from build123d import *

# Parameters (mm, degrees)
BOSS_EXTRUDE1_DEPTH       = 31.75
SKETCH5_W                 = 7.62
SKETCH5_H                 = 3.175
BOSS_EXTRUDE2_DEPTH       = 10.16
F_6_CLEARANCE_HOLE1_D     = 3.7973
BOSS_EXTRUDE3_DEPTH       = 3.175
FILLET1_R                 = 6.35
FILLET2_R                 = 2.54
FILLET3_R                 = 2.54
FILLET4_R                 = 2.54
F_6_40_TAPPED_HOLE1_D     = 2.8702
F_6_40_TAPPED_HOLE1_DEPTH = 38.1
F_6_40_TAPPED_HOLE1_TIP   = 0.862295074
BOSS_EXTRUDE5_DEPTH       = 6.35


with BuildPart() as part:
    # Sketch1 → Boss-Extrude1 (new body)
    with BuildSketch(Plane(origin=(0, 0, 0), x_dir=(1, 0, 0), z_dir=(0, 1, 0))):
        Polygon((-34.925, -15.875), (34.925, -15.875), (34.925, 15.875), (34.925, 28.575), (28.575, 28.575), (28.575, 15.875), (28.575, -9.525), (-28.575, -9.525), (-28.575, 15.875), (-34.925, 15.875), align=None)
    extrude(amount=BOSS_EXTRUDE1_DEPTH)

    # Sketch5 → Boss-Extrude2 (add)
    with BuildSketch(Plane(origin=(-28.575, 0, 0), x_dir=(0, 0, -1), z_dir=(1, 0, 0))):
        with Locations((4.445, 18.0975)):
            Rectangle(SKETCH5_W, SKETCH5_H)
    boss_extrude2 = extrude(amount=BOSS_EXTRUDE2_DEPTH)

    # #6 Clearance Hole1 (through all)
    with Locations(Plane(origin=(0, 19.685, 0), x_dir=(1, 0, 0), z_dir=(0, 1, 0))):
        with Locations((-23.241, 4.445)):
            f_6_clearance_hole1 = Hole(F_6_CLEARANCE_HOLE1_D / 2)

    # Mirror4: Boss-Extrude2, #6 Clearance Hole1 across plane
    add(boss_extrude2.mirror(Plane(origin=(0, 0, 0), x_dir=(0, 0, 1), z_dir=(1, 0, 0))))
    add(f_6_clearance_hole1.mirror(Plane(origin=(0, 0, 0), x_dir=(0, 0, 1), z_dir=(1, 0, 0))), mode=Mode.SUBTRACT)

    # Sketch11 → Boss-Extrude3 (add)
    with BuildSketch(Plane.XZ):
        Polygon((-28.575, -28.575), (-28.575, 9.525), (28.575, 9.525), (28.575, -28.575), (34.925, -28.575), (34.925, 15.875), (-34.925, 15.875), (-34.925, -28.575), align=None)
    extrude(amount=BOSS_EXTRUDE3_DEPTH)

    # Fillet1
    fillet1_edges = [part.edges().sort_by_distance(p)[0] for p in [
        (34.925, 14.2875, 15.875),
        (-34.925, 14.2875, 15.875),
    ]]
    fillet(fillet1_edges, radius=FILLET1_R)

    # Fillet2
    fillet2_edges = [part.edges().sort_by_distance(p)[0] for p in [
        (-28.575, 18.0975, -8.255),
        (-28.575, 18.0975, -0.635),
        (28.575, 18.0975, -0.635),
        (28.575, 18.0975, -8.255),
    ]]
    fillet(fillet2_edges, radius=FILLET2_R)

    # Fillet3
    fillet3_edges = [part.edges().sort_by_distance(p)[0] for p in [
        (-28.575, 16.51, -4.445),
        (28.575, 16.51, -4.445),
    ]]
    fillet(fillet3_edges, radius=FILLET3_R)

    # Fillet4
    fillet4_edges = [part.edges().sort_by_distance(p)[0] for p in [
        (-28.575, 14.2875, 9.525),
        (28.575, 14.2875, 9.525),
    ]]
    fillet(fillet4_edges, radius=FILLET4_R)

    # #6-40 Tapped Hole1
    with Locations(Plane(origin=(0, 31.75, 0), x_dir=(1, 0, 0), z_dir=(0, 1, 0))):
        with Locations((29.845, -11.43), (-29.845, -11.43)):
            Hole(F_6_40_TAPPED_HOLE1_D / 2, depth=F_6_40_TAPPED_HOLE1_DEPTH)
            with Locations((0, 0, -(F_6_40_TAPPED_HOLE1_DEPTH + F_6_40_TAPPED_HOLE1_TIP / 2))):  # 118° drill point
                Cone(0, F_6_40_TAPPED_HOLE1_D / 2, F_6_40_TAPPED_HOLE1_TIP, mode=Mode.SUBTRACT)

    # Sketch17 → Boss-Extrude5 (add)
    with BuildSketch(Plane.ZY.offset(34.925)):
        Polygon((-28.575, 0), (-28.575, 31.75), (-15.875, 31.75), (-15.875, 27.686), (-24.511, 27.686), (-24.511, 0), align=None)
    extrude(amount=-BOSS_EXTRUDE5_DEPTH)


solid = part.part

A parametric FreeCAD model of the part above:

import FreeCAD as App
import Part
import Sketcher
Q = App.Units.Quantity


def edges_at(feature, points):
    """Names of the edges that pass closest to the given points."""
    edges = feature.Shape.Edges
    near = lambda p: min(range(len(edges)), key=lambda i: edges[i].distToShape(Part.Vertex(*p))[0])
    return sorted({f"Edge{near(p) + 1}" for p in points})


def add_polygon(sketch, points):
    """Adds a closed chain of lines whose ends are joined by coincident constraints."""
    first, n = sketch.GeometryCount, len(points)
    for a, b in zip(points, points[1:] + points[:1]):
        sketch.addGeometry(Part.LineSegment(App.Vector(*a, 0), App.Vector(*b, 0)), False)
    for i in range(n):
        sketch.addConstraint(Sketcher.Constraint("Coincident", first + i, 2, first + (i + 1) % n, 1))

doc = App.newDocument("Part")
body = doc.addObject("PartDesign::Body", "Body")

sketch1 = doc.addObject("Sketcher::SketchObject", "Sketch")
body.addObject(sketch1)
sketch1.AttachmentSupport = (doc.XZ_Plane, [""])
sketch1.MapMode = "FlatFace"
add_polygon(sketch1, [(-34.925, 15.875), (34.925, 15.875), (34.925, -28.575), (28.575, -28.575), (28.575, 9.525), (-28.575, 9.525), (-28.575, -15.875), (-34.925, -15.875)])
sketch1.addConstraint(Sketcher.Constraint("Horizontal", 0))
sketch1.addConstraint(Sketcher.Constraint("Vertical", 1))
sketch1.addConstraint(Sketcher.Constraint("Horizontal", 2))
sketch1.addConstraint(Sketcher.Constraint("Vertical", 3))
sketch1.addConstraint(Sketcher.Constraint("Horizontal", 4))
sketch1.addConstraint(Sketcher.Constraint("Vertical", 5))
sketch1.addConstraint(Sketcher.Constraint("Horizontal", 6))
sketch1.addConstraint(Sketcher.Constraint("Vertical", 7))
sketch1.addConstraint(Sketcher.Constraint("Symmetric", 0, 2, 6, 2, -1, 1))
sketch1.addConstraint(Sketcher.Constraint("Equal", 2, 6))
sketch1.addConstraint(Sketcher.Constraint("DistanceY", 5, 2, 5, 1, Q("1 in")))
sketch1.addConstraint(Sketcher.Constraint("DistanceY", 3, 1, 3, 2, Q("1.5 in")))
sketch1.addConstraint(Sketcher.Constraint("DistanceX", 0, 1, 0, 2, Q("2.75 in")))
sketch1.addConstraint(Sketcher.Constraint("DistanceX", 2, 2, 2, 1, Q("0.25 in")))
sketch1.addConstraint(Sketcher.Constraint("DistanceY", 1, 2, 1, 1, Q("1.75 in")))
pad1 = doc.addObject("PartDesign::Pad", "Pad")
body.addObject(pad1)
pad1.Profile = sketch1
pad1.Length = Q("1.25 in")
pad1.Reversed = True

sketch2 = doc.addObject("Sketcher::SketchObject", "Sketch001")
body.addObject(sketch2)
sketch2.AttachmentSupport = (doc.YZ_Plane, [""])
sketch2.MapMode = "FlatFace"
sketch2.AttachmentOffset = App.Placement(App.Vector(0, 0, -1.125 * 25.4), App.Rotation())
add_polygon(sketch2, [(19.685, -0.635), (16.51, -0.635), (16.51, -8.255), (19.685, -8.255)])
sketch2.addConstraint(Sketcher.Constraint("Horizontal", 0))
sketch2.addConstraint(Sketcher.Constraint("Vertical", 1))
sketch2.addConstraint(Sketcher.Constraint("Horizontal", 2))
sketch2.addConstraint(Sketcher.Constraint("Vertical", 3))
sketch2.addConstraint(Sketcher.Constraint("DistanceY", 1, 2, 1, 1, Q("0.3 in")))
sketch2.addConstraint(Sketcher.Constraint("DistanceX", 0, 2, 0, 1, Q("0.125 in")))
sketch2.addConstraint(Sketcher.Constraint("DistanceX", -1, 1, 0, 2, Q("0.65 in")))
sketch2.addConstraint(Sketcher.Constraint("DistanceY", 0, 2, -1, 1, Q("0.025 in")))
pad2 = doc.addObject("PartDesign::Pad", "Pad001")
body.addObject(pad2)
pad2.Profile = sketch2
pad2.Length = Q("0.4 in")

sketch3 = doc.addObject("Sketcher::SketchObject", "Sketch002")
body.addObject(sketch3)
sketch3.AttachmentSupport = (doc.XZ_Plane, [""])
sketch3.MapMode = "FlatFace"
sketch3.AttachmentOffset = App.Placement(App.Vector(0, 0, -0.775 * 25.4), App.Rotation())
sketch3.addGeometry(Part.Circle(App.Vector(-23.241, -4.445, 0), App.Vector(0, 0, 1), 1.89865), False)
sketch3.addConstraint(Sketcher.Constraint("Diameter", 0, Q("0.1495 in")))
sketch3.addConstraint(Sketcher.Constraint("DistanceX", 0, 3, -1, 1, Q("0.915 in")))
sketch3.addConstraint(Sketcher.Constraint("DistanceY", 0, 3, -1, 1, Q("0.175 in")))
doc.recompute()
hole = doc.addObject("PartDesign::Hole", "Hole")
body.addObject(hole)
hole.Profile = sketch3
hole.ThreadType = "None"
hole.Diameter = Q("0.1495 in")
hole.DepthType = "ThroughAll"
hole.Reversed = True
doc.recompute()

mirrored = doc.addObject("PartDesign::Mirrored", "Mirrored")
body.addObject(mirrored)
mirrored.Originals = [pad2, hole]
mirrored.MirrorPlane = (doc.YZ_Plane, [""])
body.Tip = mirrored

sketch4 = doc.addObject("Sketcher::SketchObject", "Sketch003")
body.addObject(sketch4)
sketch4.AttachmentSupport = (doc.XZ_Plane, [""])
sketch4.MapMode = "FlatFace"
add_polygon(sketch4, [(-28.575, -28.575), (-28.575, 9.525), (28.575, 9.525), (28.575, -28.575), (34.925, -28.575), (34.925, 15.875), (-34.925, 15.875), (-34.925, -28.575)])
sketch4.addConstraint(Sketcher.Constraint("Vertical", 0))
sketch4.addConstraint(Sketcher.Constraint("Horizontal", 1))
sketch4.addConstraint(Sketcher.Constraint("Vertical", 2))
sketch4.addConstraint(Sketcher.Constraint("Horizontal", 3))
sketch4.addConstraint(Sketcher.Constraint("Vertical", 4))
sketch4.addConstraint(Sketcher.Constraint("Horizontal", 5))
sketch4.addConstraint(Sketcher.Constraint("Vertical", 6))
sketch4.addConstraint(Sketcher.Constraint("Horizontal", 7))
sketch4.addConstraint(Sketcher.Constraint("Symmetric", 3, 2, 6, 2, -2))
sketch4.addConstraint(Sketcher.Constraint("Equal", 3, 7))
sketch4.addConstraint(Sketcher.Constraint("DistanceY", 0, 1, 0, 2, Q("1.5 in")))
sketch4.addConstraint(Sketcher.Constraint("DistanceX", 1, 1, 1, 2, Q("2.25 in")))
sketch4.addConstraint(Sketcher.Constraint("DistanceX", 3, 1, 3, 2, Q("0.25 in")))
sketch4.addConstraint(Sketcher.Constraint("DistanceY", 4, 1, 4, 2, Q("1.75 in")))
sketch4.addConstraint(Sketcher.Constraint("DistanceY", -1, 1, 0, 2, Q("0.375 in")))
pad3 = doc.addObject("PartDesign::Pad", "Pad002")
body.addObject(pad3)
pad3.Profile = sketch4
pad3.Length = Q("0.125 in")
doc.recompute()

fillet = doc.addObject("PartDesign::Fillet", "Fillet")
body.addObject(fillet)
fillet.Base = (pad3, edges_at(pad3, [(34.925, 14.287, 15.875), (-34.925, 14.287, 15.875)]))
fillet.Radius = Q("0.25 in")
doc.recompute()

fillet2 = doc.addObject("PartDesign::Fillet", "Fillet001")
body.addObject(fillet2)
fillet2.Base = (fillet, edges_at(fillet, [
    (-28.575, 18.098, -8.255),
    (-28.575, 18.098, -0.635),
    (28.575, 18.098, -0.635),
    (28.575, 18.098, -8.255),
]))
fillet2.Radius = Q("0.1 in")
doc.recompute()

fillet3 = doc.addObject("PartDesign::Fillet", "Fillet002")
body.addObject(fillet3)
fillet3.Base = (fillet2, edges_at(fillet2, [(-28.575, 16.51, -4.445), (28.575, 16.51, -4.445)]))
fillet3.Radius = Q("0.1 in")
doc.recompute()

fillet4 = doc.addObject("PartDesign::Fillet", "Fillet003")
body.addObject(fillet4)
fillet4.Base = (fillet3, edges_at(fillet3, [(-28.575, 14.287, 9.525), (28.575, 14.287, 9.525)]))
fillet4.Radius = Q("0.1 in")

sketch5 = doc.addObject("Sketcher::SketchObject", "Sketch004")
body.addObject(sketch5)
sketch5.AttachmentSupport = (doc.XZ_Plane, [""])
sketch5.MapMode = "FlatFace"
sketch5.AttachmentOffset = App.Placement(App.Vector(0, 0, -1.25 * 25.4), App.Rotation())
sketch5.addGeometry(Part.Circle(App.Vector(29.845, 11.43, 0), App.Vector(0, 0, 1), 1.4351), False)
sketch5.addGeometry(Part.Circle(App.Vector(-29.845, 11.43, 0), App.Vector(0, 0, 1), 1.4351), False)
sketch5.addConstraint(Sketcher.Constraint("Equal", 0, 1))
sketch5.addConstraint(Sketcher.Constraint("Symmetric", 0, 3, 1, 3, -2))
sketch5.addConstraint(Sketcher.Constraint("Diameter", 0, Q("0.113 in")))
sketch5.addConstraint(Sketcher.Constraint("DistanceY", -1, 1, 0, 3, Q("0.45 in")))
sketch5.addConstraint(Sketcher.Constraint("DistanceX", 1, 3, 0, 3, Q("2.35 in")))
doc.recompute()
hole2 = doc.addObject("PartDesign::Hole", "Hole001")
body.addObject(hole2)
hole2.Profile = sketch5
hole2.ThreadType = "None"
hole2.Diameter = Q("0.113 in")
hole2.DepthType = "Dimension"
hole2.Depth = Q("1.5 in")
hole2.DrillPoint = "Angled"
hole2.DrillPointAngle = 118
hole2.Reversed = True

sketch6 = doc.addObject("Sketcher::SketchObject", "Sketch005")
body.addObject(sketch6)
sketch6.AttachmentSupport = (doc.YZ_Plane, [""])
sketch6.MapMode = "FlatFace"
sketch6.AttachmentOffset = App.Placement(App.Vector(0, 0, -1.375 * 25.4), App.Rotation())
add_polygon(sketch6, [(31.75, -28.575), (0, -28.575), (0, -24.511), (27.686, -24.511), (27.686, -15.875), (31.75, -15.875)])
sketch6.addConstraint(Sketcher.Constraint("Horizontal", 0))
sketch6.addConstraint(Sketcher.Constraint("Vertical", 1))
sketch6.addConstraint(Sketcher.Constraint("Horizontal", 2))
sketch6.addConstraint(Sketcher.Constraint("Vertical", 3))
sketch6.addConstraint(Sketcher.Constraint("Horizontal", 4))
sketch6.addConstraint(Sketcher.Constraint("Vertical", 5))
sketch6.addConstraint(Sketcher.Constraint("PointOnObject", 0, 2, -2))
sketch6.addConstraint(Sketcher.Constraint("Equal", 4, 1))
sketch6.addConstraint(Sketcher.Constraint("DistanceY", 5, 2, 5, 1, Q("0.5 in")))
sketch6.addConstraint(Sketcher.Constraint("DistanceX", 0, 2, 0, 1, Q("1.25 in")))
sketch6.addConstraint(Sketcher.Constraint("DistanceX", 2, 1, 2, 2, Q("1.09 in")))
sketch6.addConstraint(Sketcher.Constraint("DistanceY", 0, 2, -1, 1, Q("1.125 in")))
pad4 = doc.addObject("PartDesign::Pad", "Pad003")
body.addObject(pad4)
pad4.Profile = sketch6
pad4.Length = Q("0.25 in")

doc.recompute()
